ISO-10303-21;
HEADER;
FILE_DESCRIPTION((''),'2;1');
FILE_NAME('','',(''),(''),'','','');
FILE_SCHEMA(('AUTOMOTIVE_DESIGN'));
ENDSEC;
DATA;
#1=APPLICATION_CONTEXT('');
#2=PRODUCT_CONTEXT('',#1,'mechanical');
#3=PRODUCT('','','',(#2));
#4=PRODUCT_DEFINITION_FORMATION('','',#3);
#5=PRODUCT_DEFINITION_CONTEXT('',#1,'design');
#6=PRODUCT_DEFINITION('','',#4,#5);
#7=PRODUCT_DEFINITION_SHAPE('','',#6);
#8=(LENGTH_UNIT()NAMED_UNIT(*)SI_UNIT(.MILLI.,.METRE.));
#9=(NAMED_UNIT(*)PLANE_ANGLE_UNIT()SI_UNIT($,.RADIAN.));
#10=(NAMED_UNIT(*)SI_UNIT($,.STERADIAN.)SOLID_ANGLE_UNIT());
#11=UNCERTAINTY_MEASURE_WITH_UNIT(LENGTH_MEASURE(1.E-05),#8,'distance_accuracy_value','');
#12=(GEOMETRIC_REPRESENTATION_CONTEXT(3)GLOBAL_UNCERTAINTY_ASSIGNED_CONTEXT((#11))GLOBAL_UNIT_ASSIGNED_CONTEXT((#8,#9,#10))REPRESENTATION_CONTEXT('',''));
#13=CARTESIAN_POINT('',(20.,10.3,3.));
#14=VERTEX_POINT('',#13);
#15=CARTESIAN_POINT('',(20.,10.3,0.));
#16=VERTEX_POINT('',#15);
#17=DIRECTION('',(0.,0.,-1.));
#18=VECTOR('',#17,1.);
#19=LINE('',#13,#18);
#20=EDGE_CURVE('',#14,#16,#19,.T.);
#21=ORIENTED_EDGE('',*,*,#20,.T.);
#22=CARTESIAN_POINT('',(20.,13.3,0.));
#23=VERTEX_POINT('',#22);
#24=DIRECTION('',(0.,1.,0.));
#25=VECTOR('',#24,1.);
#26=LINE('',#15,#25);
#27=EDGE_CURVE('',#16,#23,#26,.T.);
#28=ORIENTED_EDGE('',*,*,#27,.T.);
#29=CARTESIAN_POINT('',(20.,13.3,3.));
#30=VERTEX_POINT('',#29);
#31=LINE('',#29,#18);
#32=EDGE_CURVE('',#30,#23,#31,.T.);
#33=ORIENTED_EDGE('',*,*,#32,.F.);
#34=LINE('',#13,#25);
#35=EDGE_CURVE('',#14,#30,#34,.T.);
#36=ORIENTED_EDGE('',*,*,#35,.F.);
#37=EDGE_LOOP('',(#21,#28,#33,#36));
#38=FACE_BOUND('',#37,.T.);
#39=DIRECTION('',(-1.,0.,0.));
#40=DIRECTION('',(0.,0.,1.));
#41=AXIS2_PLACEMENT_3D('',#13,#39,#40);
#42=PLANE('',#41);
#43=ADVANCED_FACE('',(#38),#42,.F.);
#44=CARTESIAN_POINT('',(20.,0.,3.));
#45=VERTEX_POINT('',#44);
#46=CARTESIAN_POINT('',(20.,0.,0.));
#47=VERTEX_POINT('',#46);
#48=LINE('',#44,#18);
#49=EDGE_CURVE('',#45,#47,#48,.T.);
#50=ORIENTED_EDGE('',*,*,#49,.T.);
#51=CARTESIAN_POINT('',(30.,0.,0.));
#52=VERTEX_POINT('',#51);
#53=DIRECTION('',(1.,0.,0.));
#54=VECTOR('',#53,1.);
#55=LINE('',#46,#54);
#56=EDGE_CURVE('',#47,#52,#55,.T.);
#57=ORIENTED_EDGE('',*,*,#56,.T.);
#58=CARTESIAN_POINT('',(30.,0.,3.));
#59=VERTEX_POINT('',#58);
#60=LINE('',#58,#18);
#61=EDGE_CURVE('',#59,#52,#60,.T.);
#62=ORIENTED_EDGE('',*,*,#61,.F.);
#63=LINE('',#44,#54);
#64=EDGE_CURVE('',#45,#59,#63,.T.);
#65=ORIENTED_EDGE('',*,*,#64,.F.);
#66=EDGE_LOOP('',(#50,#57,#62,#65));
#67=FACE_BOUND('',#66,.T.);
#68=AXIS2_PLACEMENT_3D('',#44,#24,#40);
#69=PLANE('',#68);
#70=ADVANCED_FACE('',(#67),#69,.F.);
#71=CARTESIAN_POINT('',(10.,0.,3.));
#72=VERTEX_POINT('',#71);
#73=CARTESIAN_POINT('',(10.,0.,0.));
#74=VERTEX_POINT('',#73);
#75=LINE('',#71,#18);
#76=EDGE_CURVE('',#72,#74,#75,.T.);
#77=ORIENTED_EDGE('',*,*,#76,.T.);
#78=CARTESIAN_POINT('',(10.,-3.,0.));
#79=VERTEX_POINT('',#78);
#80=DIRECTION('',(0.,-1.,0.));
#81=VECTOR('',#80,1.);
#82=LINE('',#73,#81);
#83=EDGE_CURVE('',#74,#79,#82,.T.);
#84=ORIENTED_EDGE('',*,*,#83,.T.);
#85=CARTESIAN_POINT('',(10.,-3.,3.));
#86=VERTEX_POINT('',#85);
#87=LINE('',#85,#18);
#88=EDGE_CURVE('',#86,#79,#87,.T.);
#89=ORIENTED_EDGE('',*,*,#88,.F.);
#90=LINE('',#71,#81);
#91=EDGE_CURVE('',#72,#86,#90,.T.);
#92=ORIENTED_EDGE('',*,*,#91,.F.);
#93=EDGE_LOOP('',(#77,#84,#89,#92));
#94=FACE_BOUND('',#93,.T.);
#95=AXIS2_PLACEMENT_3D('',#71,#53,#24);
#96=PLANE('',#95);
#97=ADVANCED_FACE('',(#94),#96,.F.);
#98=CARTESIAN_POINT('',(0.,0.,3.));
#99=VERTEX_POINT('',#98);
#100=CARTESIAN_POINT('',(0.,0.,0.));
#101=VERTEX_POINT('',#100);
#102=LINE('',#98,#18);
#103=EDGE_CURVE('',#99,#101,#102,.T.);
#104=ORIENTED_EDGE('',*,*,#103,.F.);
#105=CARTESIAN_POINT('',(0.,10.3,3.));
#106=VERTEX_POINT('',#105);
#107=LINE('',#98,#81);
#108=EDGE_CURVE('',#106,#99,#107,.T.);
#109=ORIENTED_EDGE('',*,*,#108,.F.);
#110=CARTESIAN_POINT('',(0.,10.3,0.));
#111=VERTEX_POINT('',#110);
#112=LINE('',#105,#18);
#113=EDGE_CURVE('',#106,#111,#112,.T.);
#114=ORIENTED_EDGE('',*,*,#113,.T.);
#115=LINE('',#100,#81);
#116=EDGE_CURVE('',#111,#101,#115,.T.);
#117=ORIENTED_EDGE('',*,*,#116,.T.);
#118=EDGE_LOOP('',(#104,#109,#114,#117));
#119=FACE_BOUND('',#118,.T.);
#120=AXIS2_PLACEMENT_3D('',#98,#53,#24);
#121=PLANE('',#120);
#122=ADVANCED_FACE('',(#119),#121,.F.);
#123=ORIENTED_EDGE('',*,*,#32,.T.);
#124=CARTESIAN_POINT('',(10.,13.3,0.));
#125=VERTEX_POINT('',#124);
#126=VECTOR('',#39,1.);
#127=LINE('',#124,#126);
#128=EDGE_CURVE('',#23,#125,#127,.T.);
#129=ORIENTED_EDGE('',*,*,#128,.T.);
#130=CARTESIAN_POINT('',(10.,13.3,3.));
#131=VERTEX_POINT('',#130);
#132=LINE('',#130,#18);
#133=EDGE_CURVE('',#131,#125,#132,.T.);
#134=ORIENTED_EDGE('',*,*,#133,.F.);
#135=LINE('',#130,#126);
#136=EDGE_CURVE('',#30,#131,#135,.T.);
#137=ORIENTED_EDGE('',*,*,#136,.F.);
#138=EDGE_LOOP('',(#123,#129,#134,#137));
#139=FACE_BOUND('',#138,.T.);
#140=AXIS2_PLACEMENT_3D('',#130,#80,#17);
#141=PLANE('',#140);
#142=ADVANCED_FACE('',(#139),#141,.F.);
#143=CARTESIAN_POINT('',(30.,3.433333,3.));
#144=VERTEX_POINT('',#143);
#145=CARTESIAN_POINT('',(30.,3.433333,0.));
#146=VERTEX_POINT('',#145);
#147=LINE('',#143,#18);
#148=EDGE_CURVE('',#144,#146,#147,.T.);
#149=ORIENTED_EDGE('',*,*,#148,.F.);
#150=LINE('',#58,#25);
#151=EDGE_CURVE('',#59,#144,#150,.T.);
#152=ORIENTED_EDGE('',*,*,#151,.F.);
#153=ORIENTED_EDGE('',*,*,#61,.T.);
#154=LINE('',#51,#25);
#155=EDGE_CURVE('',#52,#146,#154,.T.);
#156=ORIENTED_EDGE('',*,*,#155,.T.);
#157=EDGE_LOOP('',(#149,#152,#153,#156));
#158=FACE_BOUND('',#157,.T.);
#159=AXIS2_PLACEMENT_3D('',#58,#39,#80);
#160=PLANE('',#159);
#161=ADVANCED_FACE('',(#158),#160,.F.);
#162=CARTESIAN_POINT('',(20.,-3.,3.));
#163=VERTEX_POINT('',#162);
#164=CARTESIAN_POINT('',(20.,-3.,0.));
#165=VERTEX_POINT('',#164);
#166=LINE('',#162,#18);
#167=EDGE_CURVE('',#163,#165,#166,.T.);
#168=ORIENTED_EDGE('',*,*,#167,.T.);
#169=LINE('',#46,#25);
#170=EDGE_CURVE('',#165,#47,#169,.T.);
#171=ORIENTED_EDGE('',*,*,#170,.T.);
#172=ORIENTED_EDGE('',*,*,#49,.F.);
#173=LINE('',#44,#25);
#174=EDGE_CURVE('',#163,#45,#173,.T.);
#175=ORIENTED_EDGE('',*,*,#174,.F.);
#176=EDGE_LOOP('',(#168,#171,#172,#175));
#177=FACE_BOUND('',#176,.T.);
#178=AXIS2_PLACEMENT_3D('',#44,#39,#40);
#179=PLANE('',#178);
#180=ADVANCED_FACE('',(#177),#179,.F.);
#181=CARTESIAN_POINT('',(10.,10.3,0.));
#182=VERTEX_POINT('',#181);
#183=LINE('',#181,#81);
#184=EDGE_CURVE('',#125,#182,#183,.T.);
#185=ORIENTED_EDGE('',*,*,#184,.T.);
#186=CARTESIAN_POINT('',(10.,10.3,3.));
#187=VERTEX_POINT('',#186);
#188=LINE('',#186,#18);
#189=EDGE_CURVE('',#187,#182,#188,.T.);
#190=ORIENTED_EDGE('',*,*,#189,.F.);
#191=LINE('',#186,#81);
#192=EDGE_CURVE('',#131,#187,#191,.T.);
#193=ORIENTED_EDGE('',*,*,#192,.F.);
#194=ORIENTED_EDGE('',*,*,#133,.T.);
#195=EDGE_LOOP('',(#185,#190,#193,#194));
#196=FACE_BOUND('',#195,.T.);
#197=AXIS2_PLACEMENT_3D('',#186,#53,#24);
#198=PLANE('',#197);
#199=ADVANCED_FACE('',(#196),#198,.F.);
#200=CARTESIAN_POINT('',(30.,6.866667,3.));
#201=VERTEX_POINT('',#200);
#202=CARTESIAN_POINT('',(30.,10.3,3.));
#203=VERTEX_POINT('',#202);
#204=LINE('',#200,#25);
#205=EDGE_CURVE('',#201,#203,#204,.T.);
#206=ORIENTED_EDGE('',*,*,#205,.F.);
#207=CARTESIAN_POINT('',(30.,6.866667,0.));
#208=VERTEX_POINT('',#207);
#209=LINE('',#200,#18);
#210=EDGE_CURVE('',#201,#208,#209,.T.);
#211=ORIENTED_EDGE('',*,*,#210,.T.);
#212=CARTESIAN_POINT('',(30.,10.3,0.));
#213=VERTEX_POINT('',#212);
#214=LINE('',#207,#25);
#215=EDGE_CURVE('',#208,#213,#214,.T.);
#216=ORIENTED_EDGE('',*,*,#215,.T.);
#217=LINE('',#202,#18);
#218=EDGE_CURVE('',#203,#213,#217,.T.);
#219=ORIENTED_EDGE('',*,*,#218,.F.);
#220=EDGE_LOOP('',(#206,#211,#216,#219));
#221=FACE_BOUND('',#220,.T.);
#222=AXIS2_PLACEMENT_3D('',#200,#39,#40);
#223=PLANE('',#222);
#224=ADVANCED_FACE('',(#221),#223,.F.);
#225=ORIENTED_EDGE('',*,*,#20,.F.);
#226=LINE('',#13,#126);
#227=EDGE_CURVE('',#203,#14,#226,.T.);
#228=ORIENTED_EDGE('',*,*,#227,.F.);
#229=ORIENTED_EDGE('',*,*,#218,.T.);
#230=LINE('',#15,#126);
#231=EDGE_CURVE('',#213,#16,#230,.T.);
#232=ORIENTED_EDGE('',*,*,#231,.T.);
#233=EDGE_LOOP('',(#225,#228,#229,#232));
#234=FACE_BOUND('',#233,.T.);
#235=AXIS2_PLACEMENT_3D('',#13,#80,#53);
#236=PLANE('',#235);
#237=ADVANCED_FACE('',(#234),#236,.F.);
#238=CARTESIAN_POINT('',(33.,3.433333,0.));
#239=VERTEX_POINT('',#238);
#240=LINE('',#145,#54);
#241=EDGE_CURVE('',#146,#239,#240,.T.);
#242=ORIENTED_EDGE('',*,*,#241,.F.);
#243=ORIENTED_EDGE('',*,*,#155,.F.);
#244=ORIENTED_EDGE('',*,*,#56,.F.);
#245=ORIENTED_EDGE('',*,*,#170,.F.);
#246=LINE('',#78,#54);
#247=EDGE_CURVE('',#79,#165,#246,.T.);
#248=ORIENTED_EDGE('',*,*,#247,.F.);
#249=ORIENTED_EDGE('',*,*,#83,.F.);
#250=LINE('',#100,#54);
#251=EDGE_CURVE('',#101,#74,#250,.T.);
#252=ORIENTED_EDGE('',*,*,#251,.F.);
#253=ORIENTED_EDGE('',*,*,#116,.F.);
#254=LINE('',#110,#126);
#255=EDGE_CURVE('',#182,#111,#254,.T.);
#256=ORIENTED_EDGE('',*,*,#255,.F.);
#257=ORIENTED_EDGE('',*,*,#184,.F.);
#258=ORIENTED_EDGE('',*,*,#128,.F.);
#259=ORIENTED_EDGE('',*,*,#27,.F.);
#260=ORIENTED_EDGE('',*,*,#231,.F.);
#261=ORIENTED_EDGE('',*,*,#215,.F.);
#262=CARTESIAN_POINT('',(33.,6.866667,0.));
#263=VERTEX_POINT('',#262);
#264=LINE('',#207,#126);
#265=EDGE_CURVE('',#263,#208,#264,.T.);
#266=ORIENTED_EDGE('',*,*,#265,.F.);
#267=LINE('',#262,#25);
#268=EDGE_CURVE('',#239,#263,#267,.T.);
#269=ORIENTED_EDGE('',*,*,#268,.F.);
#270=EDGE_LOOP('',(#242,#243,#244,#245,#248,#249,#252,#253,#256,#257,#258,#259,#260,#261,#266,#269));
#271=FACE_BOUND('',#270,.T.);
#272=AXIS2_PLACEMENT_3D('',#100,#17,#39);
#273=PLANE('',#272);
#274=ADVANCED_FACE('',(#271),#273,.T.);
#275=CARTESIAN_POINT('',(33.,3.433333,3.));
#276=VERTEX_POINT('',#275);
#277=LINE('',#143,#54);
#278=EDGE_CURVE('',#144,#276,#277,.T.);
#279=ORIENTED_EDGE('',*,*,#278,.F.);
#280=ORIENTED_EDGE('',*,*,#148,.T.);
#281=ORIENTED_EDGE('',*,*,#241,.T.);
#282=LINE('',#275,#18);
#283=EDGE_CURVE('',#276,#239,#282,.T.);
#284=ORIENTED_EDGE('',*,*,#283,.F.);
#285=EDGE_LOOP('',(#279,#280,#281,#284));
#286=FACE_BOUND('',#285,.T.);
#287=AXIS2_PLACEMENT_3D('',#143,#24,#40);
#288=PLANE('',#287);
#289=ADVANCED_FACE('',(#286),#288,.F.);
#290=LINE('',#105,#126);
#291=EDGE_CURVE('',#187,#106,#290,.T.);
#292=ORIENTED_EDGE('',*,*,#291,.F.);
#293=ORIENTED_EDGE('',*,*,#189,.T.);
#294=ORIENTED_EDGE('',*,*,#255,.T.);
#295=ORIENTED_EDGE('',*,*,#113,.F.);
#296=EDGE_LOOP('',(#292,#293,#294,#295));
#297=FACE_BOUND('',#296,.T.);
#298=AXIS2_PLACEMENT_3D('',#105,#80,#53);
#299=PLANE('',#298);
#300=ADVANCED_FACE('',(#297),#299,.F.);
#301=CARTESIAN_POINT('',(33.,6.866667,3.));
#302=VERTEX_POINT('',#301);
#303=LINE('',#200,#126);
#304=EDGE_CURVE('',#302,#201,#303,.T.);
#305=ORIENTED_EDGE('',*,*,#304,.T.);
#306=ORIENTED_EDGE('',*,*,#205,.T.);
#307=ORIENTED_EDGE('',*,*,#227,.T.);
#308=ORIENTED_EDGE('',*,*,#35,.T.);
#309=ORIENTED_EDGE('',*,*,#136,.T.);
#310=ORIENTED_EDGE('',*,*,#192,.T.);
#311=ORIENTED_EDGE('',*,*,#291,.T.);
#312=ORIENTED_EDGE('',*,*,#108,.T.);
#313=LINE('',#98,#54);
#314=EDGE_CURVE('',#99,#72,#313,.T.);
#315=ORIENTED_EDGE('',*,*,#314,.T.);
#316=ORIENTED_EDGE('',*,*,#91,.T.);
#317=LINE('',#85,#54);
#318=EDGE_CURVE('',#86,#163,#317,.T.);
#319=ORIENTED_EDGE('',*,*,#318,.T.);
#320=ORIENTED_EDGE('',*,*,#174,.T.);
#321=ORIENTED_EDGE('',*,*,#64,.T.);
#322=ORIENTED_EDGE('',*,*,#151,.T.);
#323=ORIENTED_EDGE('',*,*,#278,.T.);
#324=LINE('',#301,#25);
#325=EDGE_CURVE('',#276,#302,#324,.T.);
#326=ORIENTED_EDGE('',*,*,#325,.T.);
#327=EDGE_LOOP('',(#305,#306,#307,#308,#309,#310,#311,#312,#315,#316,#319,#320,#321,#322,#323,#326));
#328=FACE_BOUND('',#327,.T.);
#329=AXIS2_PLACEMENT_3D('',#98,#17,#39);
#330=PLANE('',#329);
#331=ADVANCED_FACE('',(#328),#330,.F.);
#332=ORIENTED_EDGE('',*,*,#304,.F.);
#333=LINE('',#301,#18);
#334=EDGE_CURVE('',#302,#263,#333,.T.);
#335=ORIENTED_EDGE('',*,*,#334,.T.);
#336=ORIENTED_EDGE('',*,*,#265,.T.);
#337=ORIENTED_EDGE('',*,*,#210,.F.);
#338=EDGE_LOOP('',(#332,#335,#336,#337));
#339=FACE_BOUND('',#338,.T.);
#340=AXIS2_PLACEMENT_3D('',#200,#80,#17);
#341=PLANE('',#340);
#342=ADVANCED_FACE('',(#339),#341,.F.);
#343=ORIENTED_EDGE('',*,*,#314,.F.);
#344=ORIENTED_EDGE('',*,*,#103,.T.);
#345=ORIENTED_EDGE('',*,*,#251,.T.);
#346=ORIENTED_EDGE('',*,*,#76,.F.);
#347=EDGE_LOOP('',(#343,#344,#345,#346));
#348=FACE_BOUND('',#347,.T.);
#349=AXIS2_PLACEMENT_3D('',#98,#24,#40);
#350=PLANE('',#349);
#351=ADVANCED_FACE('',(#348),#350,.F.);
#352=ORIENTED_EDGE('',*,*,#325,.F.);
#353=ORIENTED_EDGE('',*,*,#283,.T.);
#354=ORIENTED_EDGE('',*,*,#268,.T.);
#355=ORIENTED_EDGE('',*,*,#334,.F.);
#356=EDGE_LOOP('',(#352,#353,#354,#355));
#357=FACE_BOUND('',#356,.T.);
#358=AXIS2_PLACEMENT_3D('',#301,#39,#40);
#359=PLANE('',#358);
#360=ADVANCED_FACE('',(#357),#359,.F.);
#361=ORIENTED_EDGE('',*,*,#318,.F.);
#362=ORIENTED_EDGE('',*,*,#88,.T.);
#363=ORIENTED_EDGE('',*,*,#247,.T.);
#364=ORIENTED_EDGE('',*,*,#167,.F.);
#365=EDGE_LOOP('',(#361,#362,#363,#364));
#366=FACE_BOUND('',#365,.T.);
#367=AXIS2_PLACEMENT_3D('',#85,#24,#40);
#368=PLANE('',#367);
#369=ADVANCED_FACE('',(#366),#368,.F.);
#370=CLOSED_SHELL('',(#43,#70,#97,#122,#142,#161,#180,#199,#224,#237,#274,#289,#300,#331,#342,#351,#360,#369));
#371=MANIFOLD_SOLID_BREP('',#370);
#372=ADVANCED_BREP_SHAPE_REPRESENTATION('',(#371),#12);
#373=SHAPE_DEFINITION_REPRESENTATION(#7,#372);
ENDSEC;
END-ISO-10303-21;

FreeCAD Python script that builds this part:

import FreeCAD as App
import Part
import Sketcher
from FreeCAD import Vector

doc = App.newDocument("Part")
body = doc.addObject("PartDesign::Body", "Body")

# Sketch on XY plane
sketch1 = body.newObject("Sketcher::SketchObject", "Sketch")
sketch1.AttachmentSupport = (doc.getObject("XY_Plane"), [""])
sketch1.MapMode = "FlatFace"
sketch1.addGeometry(Part.LineSegment(Vector(0, 0, 0), Vector(10, 0, 0)), False)
sketch1.addGeometry(Part.LineSegment(Vector(10, 0, 0), Vector(10, -3, 0)), False)
sketch1.addGeometry(Part.LineSegment(Vector(10, -3, 0), Vector(20, -3, 0)), False)
sketch1.addGeometry(Part.LineSegment(Vector(20, -3, 0), Vector(20, 0, 0)), False)
sketch1.addGeometry(Part.LineSegment(Vector(20, 0, 0), Vector(30, 0, 0)), False)
sketch1.addGeometry(Part.LineSegment(Vector(30, 0, 0), Vector(30, 3.4, 0)), False)
sketch1.addGeometry(Part.LineSegment(Vector(30, 3.4, 0), Vector(33, 3.4, 0)), False)
sketch1.addGeometry(Part.LineSegment(Vector(33, 3.4, 0), Vector(33, 6.9, 0)), False)
sketch1.addGeometry(Part.LineSegment(Vector(33, 6.9, 0), Vector(30, 6.9, 0)), False)
sketch1.addGeometry(Part.LineSegment(Vector(30, 6.9, 0), Vector(30, 10.3, 0)), False)
sketch1.addGeometry(Part.LineSegment(Vector(30, 10.3, 0), Vector(20, 10.3, 0)), False)
sketch1.addGeometry(Part.LineSegment(Vector(20, 10.3, 0), Vector(20, 13.3, 0)), False)
sketch1.addGeometry(Part.LineSegment(Vector(20, 13.3, 0), Vector(10, 13.3, 0)), False)
sketch1.addGeometry(Part.LineSegment(Vector(10, 13.3, 0), Vector(10, 10.3, 0)), False)
sketch1.addGeometry(Part.LineSegment(Vector(10, 10.3, 0), Vector(0, 10.3, 0)), False)
sketch1.addGeometry(Part.LineSegment(Vector(0, 10.3, 0), Vector(0, 0, 0)), False)
sketch1.addConstraint(Sketcher.Constraint("Coincident", 0, 2, 1, 1))
sketch1.addConstraint(Sketcher.Constraint("Coincident", 1, 2, 2, 1))
sketch1.addConstraint(Sketcher.Constraint("Coincident", 2, 2, 3, 1))
sketch1.addConstraint(Sketcher.Constraint("Coincident", 3, 2, 4, 1))
sketch1.addConstraint(Sketcher.Constraint("Coincident", 4, 2, 5, 1))
sketch1.addConstraint(Sketcher.Constraint("Coincident", 5, 2, 6, 1))
sketch1.addConstraint(Sketcher.Constraint("Coincident", 6, 2, 7, 1))
sketch1.addConstraint(Sketcher.Constraint("Coincident", 7, 2, 8, 1))
sketch1.addConstraint(Sketcher.Constraint("Coincident", 8, 2, 9, 1))
sketch1.addConstraint(Sketcher.Constraint("Coincident", 9, 2, 10, 1))
sketch1.addConstraint(Sketcher.Constraint("Coincident", 10, 2, 11, 1))
sketch1.addConstraint(Sketcher.Constraint("Coincident", 11, 2, 12, 1))
sketch1.addConstraint(Sketcher.Constraint("Coincident", 12, 2, 13, 1))
sketch1.addConstraint(Sketcher.Constraint("Coincident", 13, 2, 14, 1))
sketch1.addConstraint(Sketcher.Constraint("Coincident", 14, 2, 15, 1))
sketch1.addConstraint(Sketcher.Constraint("Coincident", 15, 2, 0, 1))
sketch1.addConstraint(Sketcher.Constraint("Horizontal", 0))
sketch1.addConstraint(Sketcher.Constraint("Vertical", 1))
sketch1.addConstraint(Sketcher.Constraint("Horizontal", 2))
sketch1.addConstraint(Sketcher.Constraint("Vertical", 3))
sketch1.addConstraint(Sketcher.Constraint("Horizontal", 4))
sketch1.addConstraint(Sketcher.Constraint("Vertical", 5))
sketch1.addConstraint(Sketcher.Constraint("Horizontal", 6))
sketch1.addConstraint(Sketcher.Constraint("Vertical", 7))
sketch1.addConstraint(Sketcher.Constraint("Horizontal", 8))
sketch1.addConstraint(Sketcher.Constraint("Vertical", 9))
sketch1.addConstraint(Sketcher.Constraint("Horizontal", 10))
sketch1.addConstraint(Sketcher.Constraint("Vertical", 11))
sketch1.addConstraint(Sketcher.Constraint("Horizontal", 12))
sketch1.addConstraint(Sketcher.Constraint("Vertical", 13))
sketch1.addConstraint(Sketcher.Constraint("Horizontal", 14))
sketch1.addConstraint(Sketcher.Constraint("Vertical", 15))
sketch1.addConstraint(Sketcher.Constraint("Coincident", 15, 2, -1, 1))
sketch1.addConstraint(Sketcher.Constraint("PointOnObject", 3, 2, -1))
sketch1.addConstraint(Sketcher.Constraint("Horizontal", 10, 2, 13, 2))
sketch1.addConstraint(Sketcher.Constraint("Vertical", 5, 2, 8, 2))
sketch1.addConstraint(Sketcher.Constraint("Vertical", 3, 2, 10, 2))
sketch1.addConstraint(Sketcher.Constraint("Vertical", 1, 2, 12, 2))
sketch1.addConstraint(Sketcher.Constraint("Equal", 0, 2))
sketch1.addConstraint(Sketcher.Constraint("Equal", 2, 4))
sketch1.addConstraint(Sketcher.Constraint("Equal", 8, 1))
sketch1.addConstraint(Sketcher.Constraint("Equal", 5, 7))
sketch1.addConstraint(Sketcher.Constraint("Equal", 7, 9))
sketch1.addConstraint(Sketcher.Constraint("Equal", 3, 11))
sketch1.addConstraint(Sketcher.Constraint("DistanceX", 0, 1, 0, 2, 10.0))
sketch1.addConstraint(Sketcher.Constraint("DistanceX", 6, 1, 6, 2, 3.0))
sketch1.addConstraint(Sketcher.Constraint("DistanceY", 15, 2, 15, 1, 10.3))
pad1 = body.newObject("PartDesign::Pad", "Pad")
pad1.Profile = sketch1
pad1.Length = 3

doc.recompute()
